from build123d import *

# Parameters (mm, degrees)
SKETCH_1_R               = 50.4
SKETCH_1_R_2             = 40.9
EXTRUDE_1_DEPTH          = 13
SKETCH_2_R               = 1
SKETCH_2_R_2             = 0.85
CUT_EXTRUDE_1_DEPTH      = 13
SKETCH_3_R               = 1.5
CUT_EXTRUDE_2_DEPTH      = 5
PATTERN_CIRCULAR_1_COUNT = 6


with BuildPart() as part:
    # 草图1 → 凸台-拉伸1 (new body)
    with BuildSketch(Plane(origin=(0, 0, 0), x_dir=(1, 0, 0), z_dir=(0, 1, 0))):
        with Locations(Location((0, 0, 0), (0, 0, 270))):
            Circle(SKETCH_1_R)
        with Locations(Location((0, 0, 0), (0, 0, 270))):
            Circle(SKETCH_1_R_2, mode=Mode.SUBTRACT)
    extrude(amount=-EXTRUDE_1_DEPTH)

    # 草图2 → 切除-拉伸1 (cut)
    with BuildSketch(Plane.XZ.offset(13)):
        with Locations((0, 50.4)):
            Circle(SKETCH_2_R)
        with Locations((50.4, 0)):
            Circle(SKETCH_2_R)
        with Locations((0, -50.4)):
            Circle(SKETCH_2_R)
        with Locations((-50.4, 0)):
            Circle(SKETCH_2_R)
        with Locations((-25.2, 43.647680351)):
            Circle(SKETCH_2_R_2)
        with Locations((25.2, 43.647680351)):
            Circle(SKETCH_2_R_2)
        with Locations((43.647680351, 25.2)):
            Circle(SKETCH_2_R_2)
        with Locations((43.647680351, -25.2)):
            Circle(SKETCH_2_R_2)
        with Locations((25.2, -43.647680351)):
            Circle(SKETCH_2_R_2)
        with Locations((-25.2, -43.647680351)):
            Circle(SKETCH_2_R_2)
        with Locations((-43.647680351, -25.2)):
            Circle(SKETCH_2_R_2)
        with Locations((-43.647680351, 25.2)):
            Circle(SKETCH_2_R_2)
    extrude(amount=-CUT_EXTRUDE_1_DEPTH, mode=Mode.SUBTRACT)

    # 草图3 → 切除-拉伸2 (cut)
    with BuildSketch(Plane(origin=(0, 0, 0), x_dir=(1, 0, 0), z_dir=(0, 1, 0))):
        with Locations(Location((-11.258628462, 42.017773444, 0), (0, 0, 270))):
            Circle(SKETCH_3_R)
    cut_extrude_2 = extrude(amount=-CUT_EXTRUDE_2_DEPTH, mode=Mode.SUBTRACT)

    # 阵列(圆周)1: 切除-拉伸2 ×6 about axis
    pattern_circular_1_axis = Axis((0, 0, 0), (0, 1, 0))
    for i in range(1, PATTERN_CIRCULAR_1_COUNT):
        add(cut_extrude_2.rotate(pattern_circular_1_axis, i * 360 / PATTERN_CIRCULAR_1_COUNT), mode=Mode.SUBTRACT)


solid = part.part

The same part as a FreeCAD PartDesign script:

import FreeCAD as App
import Part
import Sketcher

V = App.Vector
Q = App.Units.Quantity

doc = App.newDocument("Part")
body = doc.addObject("PartDesign::Body", "Body")

# Sketch on XZ plane
sketch1 = body.newObject("Sketcher::SketchObject", "Sketch")
sketch1.AttachmentSupport = (doc.getObject("XZ_Plane"), [""])
sketch1.MapMode = "FlatFace"
sketch1.addGeometry([
    Part.Circle(V(0, 0, 0), V(0, 0, 1), 50.4),
    Part.Circle(V(0, 0, 0), V(0, 0, 1), 40.9),
], False)
sketch1.addConstraint([
    Sketcher.Constraint("Coincident", 0, 3, -1, 1),
    Sketcher.Constraint("Coincident", 1, 3, -1, 1),
    Sketcher.Constraint("Diameter", 0, Q("100.8 mm")),
    Sketcher.Constraint("Diameter", 1, Q("81.8 mm")),
])
pad1 = body.newObject("PartDesign::Pad", "Pad")
pad1.Profile = sketch1
pad1.Length = 13

# Sketch on XZ plane
sketch2 = body.newObject("Sketcher::SketchObject", "Sketch001")
sketch2.AttachmentSupport = (doc.getObject("XZ_Plane"), [""])
sketch2.MapMode = "FlatFace"
sketch2.AttachmentOffset = App.Placement(V(0, 0, 13), App.Rotation())
sketch2.addGeometry([
    Part.Circle(V(0, 50.4, 0), V(0, 0, 1), 1),  # 0
    Part.Circle(V(50.4, 0, 0), V(0, 0, 1), 1),  # 1
    Part.Circle(V(0, -50.4, 0), V(0, 0, 1), 1),  # 2
    Part.Circle(V(-50.4, 0, 0), V(0, 0, 1), 1),  # 3
    Part.Circle(V(-25.2, 43.64768, 0), V(0, 0, 1), 0.85),  # 4
    Part.Circle(V(25.2, 43.64768, 0), V(0, 0, 1), 0.85),  # 5
    Part.Circle(V(43.64768, 25.2, 0), V(0, 0, 1), 0.85),  # 6
    Part.Circle(V(43.64768, -25.2, 0), V(0, 0, 1), 0.85),  # 7
    Part.Circle(V(25.2, -43.64768, 0), V(0, 0, 1), 0.85),  # 8
    Part.Circle(V(-25.2, -43.64768, 0), V(0, 0, 1), 0.85),  # 9
    Part.Circle(V(-43.64768, -25.2, 0), V(0, 0, 1), 0.85),  # 10
    Part.Circle(V(-43.64768, 25.2, 0), V(0, 0, 1), 0.85),  # 11
], False)
sketch2.addConstraint([
    Sketcher.Constraint("Equal", 0, 1),
    Sketcher.Constraint("Equal", 1, 2),
    Sketcher.Constraint("Equal", 2, 3),
    Sketcher.Constraint("Equal", 4, 5),
    Sketcher.Constraint("Equal", 5, 6),
    Sketcher.Constraint("Equal", 6, 7),
    Sketcher.Constraint("Equal", 7, 8),
    Sketcher.Constraint("Equal", 8, 9),
    Sketcher.Constraint("Equal", 9, 10),
    Sketcher.Constraint("Equal", 10, 11),
    Sketcher.Constraint("Symmetric", 0, 3, 2, 3, -1, 1),
    Sketcher.Constraint("Symmetric", 1, 3, 3, 3, -1, 1),
    Sketcher.Constraint("Symmetric", 4, 3, 8, 3, -1, 1),
    Sketcher.Constraint("Symmetric", 5, 3, 9, 3, -1, 1),
    Sketcher.Constraint("Symmetric", 6, 3, 10, 3, -1, 1),
    Sketcher.Constraint("Symmetric", 7, 3, 11, 3, -1, 1),
    Sketcher.Constraint("Symmetric", 4, 3, 5, 3, -2),
    Sketcher.Constraint("Symmetric", 7, 3, 10, 3, -2),
    Sketcher.Constraint("PointOnObject", 0, 3, -2),
    Sketcher.Constraint("PointOnObject", 1, 3, -1),
    Sketcher.Constraint("Diameter", 0, Q("2 mm")),
    Sketcher.Constraint("Diameter", 4, Q("1.7 mm")),
    Sketcher.Constraint("DistanceY", -1, 1, 0, 3, Q("50.4 mm")),
    Sketcher.Constraint("DistanceX", -1, 1, 1, 3, Q("50.4 mm")),
    Sketcher.Constraint("DistanceX", 4, 3, -1, 1, Q("25.2 mm")),
    Sketcher.Constraint("DistanceY", -1, 1, 6, 3, Q("25.2 mm")),
    Sketcher.Constraint("DistanceY", -1, 1, 4, 3, Q("43.64768 mm")),
    Sketcher.Constraint("DistanceX", -1, 1, 6, 3, Q("43.64768 mm")),
])
pocket1 = body.newObject("PartDesign::Pocket", "Pocket")
pocket1.Profile = sketch2
pocket1.Length = 13

# Sketch on XZ plane
sketch3 = body.newObject("Sketcher::SketchObject", "Sketch002")
sketch3.AttachmentSupport = (doc.getObject("XZ_Plane"), [""])
sketch3.MapMode = "FlatFace"
sketch3.addGeometry(Part.Circle(V(-11.258628, -42.017773, 0), V(0, 0, 1), 1.5), False)
sketch3.addConstraint([
    Sketcher.Constraint("Diameter", 0, Q("3 mm")),
    Sketcher.Constraint("DistanceX", 0, 3, -1, 1, Q("11.258628 mm")),
    Sketcher.Constraint("DistanceY", 0, 3, -1, 1, Q("42.017773 mm")),
])
pocket2 = body.newObject("PartDesign::Pocket", "Pocket001")
pocket2.Profile = sketch3
pocket2.Length = 5
pocket2.Reversed = True
doc.recompute()

polarpattern = body.newObject("PartDesign::PolarPattern", "PolarPattern")
polarpattern.Originals = [pocket2]
polarpattern.Axis = (doc.getObject("Y_Axis"), [""])
polarpattern.Angle = 360
polarpattern.Occurrences = 6
body.Tip = polarpattern

doc.recompute()
